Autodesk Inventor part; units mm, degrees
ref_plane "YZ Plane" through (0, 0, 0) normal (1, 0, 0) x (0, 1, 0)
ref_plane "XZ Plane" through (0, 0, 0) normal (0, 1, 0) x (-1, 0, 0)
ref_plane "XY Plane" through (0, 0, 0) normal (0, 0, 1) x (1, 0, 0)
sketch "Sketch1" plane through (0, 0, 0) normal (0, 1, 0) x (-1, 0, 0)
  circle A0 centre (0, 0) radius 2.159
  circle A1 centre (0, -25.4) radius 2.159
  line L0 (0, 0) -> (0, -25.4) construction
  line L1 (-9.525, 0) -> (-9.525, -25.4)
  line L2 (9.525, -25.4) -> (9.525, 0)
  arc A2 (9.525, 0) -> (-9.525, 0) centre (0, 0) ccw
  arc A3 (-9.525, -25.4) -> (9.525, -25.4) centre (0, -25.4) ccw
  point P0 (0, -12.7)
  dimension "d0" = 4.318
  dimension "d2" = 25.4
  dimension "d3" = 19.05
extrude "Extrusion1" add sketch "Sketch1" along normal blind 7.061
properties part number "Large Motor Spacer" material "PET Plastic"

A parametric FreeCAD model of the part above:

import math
import FreeCAD as App
import Part
import Sketcher
Q = App.Units.Quantity

doc = App.newDocument("Part")
params = doc.addObject("Spreadsheet::Sheet", "Params")
for row, (alias, value) in enumerate([
    ("sketch1_diameter", "0.17 in"),
    ("sketch1_height", "1 in"),
    ("sketch1_radius", "0.375 in"),
    ("pad1_length", "0.2779921 in"),
], start=1):
    params.set(f"A{row}", alias)
    params.set(f"B{row}", "=" + value)
    params.setAlias(f"B{row}", alias)

body = doc.addObject("PartDesign::Body", "Body")

# Sketch on XZ plane
sketch1 = doc.addObject("Sketcher::SketchObject", "Sketch")
body.addObject(sketch1)
sketch1.AttachmentSupport = (doc.XZ_Plane, [""])
sketch1.MapMode = "FlatFace"
sketch1.addGeometry([
    Part.ArcOfCircle(Part.Circle(App.Vector(0, 0, 0), App.Vector(0, 0, 1), 9.5), math.radians(0), math.radians(180)),  # 0
    Part.LineSegment(App.Vector(9.5, 0, 0), App.Vector(9.5, -25.4, 0)),  # 1
    Part.ArcOfCircle(Part.Circle(App.Vector(0, -25.4, 0), App.Vector(0, 0, 1), 9.5), math.radians(180), math.radians(360)),  # 2
    Part.LineSegment(App.Vector(-9.5, -25.4, 0), App.Vector(-9.5, 0, 0)),  # 3
    Part.Circle(App.Vector(0, -25.4, 0), App.Vector(0, 0, 1), 2.2),  # 4
    Part.Circle(App.Vector(0, 0, 0), App.Vector(0, 0, 1), 2.2),  # 5
], False)
sketch1.addConstraint([
    Sketcher.Constraint("Tangent", 0, 1, 1, 1),
    Sketcher.Constraint("Tangent", 1, 2, 2, 2),
    Sketcher.Constraint("Tangent", 2, 1, 3, 1),
    Sketcher.Constraint("Tangent", 3, 2, 0, 2),
    Sketcher.Constraint("Vertical", 1),
    Sketcher.Constraint("Vertical", 3),
    Sketcher.Constraint("Coincident", 0, 3, -1, 1),
    Sketcher.Constraint("Coincident", 5, 3, -1, 1),
    Sketcher.Constraint("Coincident", 4, 3, 2, 3),
    Sketcher.Constraint("Equal", 4, 5),
    Sketcher.Constraint("Diameter", 4, Q("0.17 in")),
    Sketcher.Constraint("DistanceY", 1, 2, 1, 1, Q("1 in")),
    Sketcher.Constraint("Radius", 0, Q("0.375 in")),
])
sketch1.setExpression("Constraints[10]", "Params.sketch1_diameter")
sketch1.setExpression("Constraints[11]", "Params.sketch1_height")
sketch1.setExpression("Constraints[12]", "Params.sketch1_radius")
pad1 = doc.addObject("PartDesign::Pad", "Pad")
body.addObject(pad1)
pad1.Profile = sketch1
pad1.setExpression("Length", "Params.pad1_length")
pad1.Reversed = True

doc.recompute()
